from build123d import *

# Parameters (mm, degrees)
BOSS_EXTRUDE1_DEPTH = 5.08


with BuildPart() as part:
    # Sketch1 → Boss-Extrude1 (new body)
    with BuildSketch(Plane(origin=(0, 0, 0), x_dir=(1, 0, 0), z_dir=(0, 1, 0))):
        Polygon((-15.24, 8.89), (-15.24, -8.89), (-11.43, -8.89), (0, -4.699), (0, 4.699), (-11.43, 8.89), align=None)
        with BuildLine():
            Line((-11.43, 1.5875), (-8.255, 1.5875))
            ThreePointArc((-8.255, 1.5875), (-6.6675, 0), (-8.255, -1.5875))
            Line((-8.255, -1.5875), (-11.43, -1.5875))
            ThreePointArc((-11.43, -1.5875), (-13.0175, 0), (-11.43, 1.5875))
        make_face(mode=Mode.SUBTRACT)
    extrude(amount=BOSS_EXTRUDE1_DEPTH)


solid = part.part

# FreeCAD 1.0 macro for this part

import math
import FreeCAD as App
import Part
import Sketcher
Q = App.Units.Quantity


def add_polygon(sketch, points):
    """Adds a closed chain of lines whose ends are joined by coincident constraints."""
    first, n = sketch.GeometryCount, len(points)
    for a, b in zip(points, points[1:] + points[:1]):
        sketch.addGeometry(Part.LineSegment(App.Vector(*a, 0), App.Vector(*b, 0)), False)
    for i in range(n):
        sketch.addConstraint(Sketcher.Constraint("Coincident", first + i, 2, first + (i + 1) % n, 1))

doc = App.newDocument("Part")
body = doc.addObject("PartDesign::Body", "Body")

# Sketch on XZ plane
sketch1 = body.newObject("Sketcher::SketchObject", "Sketch")
sketch1.AttachmentSupport = (doc.getObject("XZ_Plane"), [""])
sketch1.MapMode = "FlatFace"
add_polygon(sketch1, [(-15.2, -8.9), (-15.2, 8.9), (-11.4, 8.9), (0, 4.7), (0, -4.7), (-11.4, -8.9)])  # lines 0-5
sketch1.addGeometry(Part.ArcOfCircle(Part.Circle(App.Vector(-11.4, 0, 0), App.Vector(0, 0, 1), 1.6), math.radians(90), math.radians(270)), False)  # 6
sketch1.addGeometry(Part.LineSegment(App.Vector(-11.4, -1.6, 0), App.Vector(-8.3, -1.6, 0)), False)  # 7
sketch1.addGeometry(Part.ArcOfCircle(Part.Circle(App.Vector(-8.3, 0, 0), App.Vector(0, 0, 1), 1.6), math.radians(-90), math.radians(90)), False)  # 8
sketch1.addGeometry(Part.LineSegment(App.Vector(-8.3, 1.6, 0), App.Vector(-11.4, 1.6, 0)), False)  # 9
sketch1.addConstraint([
    Sketcher.Constraint("Tangent", 6, 2, 7, 1),
    Sketcher.Constraint("Tangent", 7, 2, 8, 1),
    Sketcher.Constraint("Tangent", 8, 2, 9, 1),
    Sketcher.Constraint("Tangent", 9, 2, 6, 1),
    Sketcher.Constraint("Vertical", 0),
    Sketcher.Constraint("Horizontal", 1),
    Sketcher.Constraint("Vertical", 3),
    Sketcher.Constraint("Horizontal", 5),
    Sketcher.Constraint("Horizontal", 7),
    Sketcher.Constraint("Horizontal", 9),
    Sketcher.Constraint("Symmetric", 2, 2, 3, 2, -1, 1),
    Sketcher.Constraint("Symmetric", 1, 2, 4, 2, -1),
    Sketcher.Constraint("PointOnObject", 6, 3, -1),
    Sketcher.Constraint("Vertical", 6, 3, 1, 2),
    Sketcher.Constraint("DistanceY", 0, 1, 0, 2, Q("0.7 in")),
    Sketcher.Constraint("Radius", 6, Q("0.0625 in")),
    Sketcher.Constraint("DistanceX", 1, 1, 1, 2, Q("0.15 in")),
    Sketcher.Constraint("DistanceY", 3, 2, 3, 1, Q("0.37 in")),
    Sketcher.Constraint("DistanceX", 0, 2, -1, 1, Q("0.6 in")),
    Sketcher.Constraint("DistanceX", 7, 1, 7, 2, Q("0.125 in")),
])
pad1 = body.newObject("PartDesign::Pad", "Pad")
pad1.Profile = sketch1
pad1.Length = Q("0.2 in")
pad1.Reversed = True

doc.recompute()
